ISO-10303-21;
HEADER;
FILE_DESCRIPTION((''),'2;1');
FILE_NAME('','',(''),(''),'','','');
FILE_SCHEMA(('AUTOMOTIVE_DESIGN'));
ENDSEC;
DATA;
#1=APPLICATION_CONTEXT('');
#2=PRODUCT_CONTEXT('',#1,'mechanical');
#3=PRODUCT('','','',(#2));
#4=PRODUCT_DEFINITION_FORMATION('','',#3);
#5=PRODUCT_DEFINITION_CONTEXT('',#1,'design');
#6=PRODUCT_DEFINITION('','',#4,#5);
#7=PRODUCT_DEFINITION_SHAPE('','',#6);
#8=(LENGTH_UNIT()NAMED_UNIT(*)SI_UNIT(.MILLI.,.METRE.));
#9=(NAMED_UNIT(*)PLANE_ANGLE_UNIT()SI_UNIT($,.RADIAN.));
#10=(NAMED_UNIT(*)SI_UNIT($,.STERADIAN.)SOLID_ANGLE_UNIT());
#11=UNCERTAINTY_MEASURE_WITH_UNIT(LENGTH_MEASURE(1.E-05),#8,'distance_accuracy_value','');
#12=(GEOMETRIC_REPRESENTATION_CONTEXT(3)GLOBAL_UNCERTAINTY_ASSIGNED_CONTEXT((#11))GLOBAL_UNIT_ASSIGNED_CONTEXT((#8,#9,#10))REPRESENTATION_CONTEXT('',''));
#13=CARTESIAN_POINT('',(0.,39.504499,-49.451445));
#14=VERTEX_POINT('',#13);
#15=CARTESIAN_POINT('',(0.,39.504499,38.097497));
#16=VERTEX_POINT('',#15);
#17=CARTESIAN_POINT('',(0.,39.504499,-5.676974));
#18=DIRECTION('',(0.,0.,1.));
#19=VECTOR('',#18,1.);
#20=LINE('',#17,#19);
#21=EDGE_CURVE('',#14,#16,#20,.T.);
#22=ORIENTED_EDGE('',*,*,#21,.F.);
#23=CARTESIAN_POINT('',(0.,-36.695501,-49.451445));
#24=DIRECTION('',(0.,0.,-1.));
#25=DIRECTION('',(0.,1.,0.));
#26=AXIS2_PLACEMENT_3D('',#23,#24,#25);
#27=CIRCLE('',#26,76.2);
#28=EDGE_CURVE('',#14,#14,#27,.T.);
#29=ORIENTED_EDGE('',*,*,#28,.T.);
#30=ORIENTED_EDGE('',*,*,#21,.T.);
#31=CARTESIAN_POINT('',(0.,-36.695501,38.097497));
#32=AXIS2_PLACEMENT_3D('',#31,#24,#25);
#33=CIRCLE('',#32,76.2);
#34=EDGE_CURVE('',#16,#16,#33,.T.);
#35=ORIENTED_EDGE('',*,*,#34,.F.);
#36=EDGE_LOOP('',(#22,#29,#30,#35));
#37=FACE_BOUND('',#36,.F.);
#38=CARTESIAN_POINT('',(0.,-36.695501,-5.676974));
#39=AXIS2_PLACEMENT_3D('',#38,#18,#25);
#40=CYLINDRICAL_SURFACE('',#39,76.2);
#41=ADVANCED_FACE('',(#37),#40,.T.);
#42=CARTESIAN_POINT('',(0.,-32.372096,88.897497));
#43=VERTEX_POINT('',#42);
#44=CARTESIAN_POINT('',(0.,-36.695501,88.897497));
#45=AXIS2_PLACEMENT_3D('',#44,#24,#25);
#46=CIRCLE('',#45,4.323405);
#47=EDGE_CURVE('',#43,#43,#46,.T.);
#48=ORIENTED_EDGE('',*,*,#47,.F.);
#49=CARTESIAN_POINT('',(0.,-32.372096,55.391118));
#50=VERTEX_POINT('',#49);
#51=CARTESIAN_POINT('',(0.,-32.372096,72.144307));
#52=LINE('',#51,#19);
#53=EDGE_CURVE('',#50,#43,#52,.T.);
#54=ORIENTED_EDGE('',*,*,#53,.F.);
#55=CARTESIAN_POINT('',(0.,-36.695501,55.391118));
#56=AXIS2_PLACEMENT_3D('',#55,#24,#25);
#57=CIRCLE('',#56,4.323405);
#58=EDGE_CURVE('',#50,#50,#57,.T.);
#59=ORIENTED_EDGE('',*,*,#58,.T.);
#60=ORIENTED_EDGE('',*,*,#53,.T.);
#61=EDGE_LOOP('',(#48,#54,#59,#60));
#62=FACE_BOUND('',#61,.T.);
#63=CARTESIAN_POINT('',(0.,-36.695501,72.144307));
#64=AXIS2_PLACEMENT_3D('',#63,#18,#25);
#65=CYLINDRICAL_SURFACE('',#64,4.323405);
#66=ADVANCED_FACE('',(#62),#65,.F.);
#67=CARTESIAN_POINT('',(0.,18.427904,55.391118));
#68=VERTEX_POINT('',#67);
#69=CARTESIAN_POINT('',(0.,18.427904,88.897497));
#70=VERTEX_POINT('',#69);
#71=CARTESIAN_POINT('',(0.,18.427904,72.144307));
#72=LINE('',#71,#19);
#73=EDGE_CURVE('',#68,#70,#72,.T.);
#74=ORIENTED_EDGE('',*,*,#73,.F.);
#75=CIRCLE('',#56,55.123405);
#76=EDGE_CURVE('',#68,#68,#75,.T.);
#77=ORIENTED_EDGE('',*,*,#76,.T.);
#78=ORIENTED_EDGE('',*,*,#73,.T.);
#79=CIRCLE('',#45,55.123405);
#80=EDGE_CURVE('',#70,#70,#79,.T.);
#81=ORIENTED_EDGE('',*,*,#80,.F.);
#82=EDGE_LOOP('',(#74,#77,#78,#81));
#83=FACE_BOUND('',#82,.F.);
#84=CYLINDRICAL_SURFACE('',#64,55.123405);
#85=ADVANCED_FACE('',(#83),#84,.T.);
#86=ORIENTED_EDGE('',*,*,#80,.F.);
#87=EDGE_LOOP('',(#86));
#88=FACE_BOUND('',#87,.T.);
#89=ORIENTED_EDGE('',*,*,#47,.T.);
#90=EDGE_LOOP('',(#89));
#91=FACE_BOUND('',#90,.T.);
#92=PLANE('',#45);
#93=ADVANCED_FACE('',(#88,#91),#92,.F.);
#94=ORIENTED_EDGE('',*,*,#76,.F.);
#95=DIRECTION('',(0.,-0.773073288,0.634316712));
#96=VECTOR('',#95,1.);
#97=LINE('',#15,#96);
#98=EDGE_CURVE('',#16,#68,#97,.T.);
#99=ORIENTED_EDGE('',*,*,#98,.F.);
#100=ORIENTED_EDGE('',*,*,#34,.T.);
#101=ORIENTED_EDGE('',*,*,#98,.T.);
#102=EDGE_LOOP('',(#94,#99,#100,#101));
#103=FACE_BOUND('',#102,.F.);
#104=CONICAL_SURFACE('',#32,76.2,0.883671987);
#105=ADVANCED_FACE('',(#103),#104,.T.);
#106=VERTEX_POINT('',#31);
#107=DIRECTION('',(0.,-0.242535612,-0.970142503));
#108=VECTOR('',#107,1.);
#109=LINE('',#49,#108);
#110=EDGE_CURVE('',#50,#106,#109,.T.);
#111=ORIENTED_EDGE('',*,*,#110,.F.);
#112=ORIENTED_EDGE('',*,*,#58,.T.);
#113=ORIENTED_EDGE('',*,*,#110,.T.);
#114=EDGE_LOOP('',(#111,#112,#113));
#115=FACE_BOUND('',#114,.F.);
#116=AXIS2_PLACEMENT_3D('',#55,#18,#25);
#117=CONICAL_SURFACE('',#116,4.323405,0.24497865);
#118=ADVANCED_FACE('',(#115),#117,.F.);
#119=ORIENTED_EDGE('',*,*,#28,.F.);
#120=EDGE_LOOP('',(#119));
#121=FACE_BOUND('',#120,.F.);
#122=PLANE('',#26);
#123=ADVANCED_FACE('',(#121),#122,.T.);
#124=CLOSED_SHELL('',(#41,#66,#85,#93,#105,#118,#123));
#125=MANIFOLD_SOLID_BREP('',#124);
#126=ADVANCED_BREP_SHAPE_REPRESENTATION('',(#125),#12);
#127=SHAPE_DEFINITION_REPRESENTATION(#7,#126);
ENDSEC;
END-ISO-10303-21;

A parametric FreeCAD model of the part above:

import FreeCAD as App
import Part
import Sketcher
Q = App.Units.Quantity

doc = App.newDocument("Part")
body = doc.addObject("PartDesign::Body", "Body")

# Sketch on YZ plane
sketch1 = body.newObject("Sketcher::SketchObject", "Sketch")
sketch1.AttachmentSupport = (doc.getObject("YZ_Plane"), [""])
sketch1.MapMode = "FlatFace"
sketch1.addGeometry(Part.LineSegment(App.Vector(-32, 89, 0), App.Vector(-32, 55, 0)), False)
sketch1.addGeometry(Part.LineSegment(App.Vector(-32, 55, 0), App.Vector(-37, 38, 0)), False)
sketch1.addGeometry(Part.LineSegment(App.Vector(-37, 38, 0), App.Vector(-37, -49, 0)), False)
sketch1.addGeometry(Part.LineSegment(App.Vector(-37, -49, 0), App.Vector(40, -49, 0)), False)
sketch1.addGeometry(Part.LineSegment(App.Vector(40, -49, 0), App.Vector(40, 38, 0)), False)
sketch1.addGeometry(Part.LineSegment(App.Vector(40, 38, 0), App.Vector(18, 55, 0)), False)
sketch1.addGeometry(Part.LineSegment(App.Vector(18, 55, 0), App.Vector(18, 89, 0)), False)
sketch1.addGeometry(Part.LineSegment(App.Vector(18, 89, 0), App.Vector(-32, 89, 0)), False)
sketch1.addGeometry(Part.LineSegment(App.Vector(-37, 89, 0), App.Vector(-37, -49, 0)), True)  # axis
sketch1.addConstraint(Sketcher.Constraint("Coincident", 0, 2, 1, 1))
sketch1.addConstraint(Sketcher.Constraint("Coincident", 1, 2, 2, 1))
sketch1.addConstraint(Sketcher.Constraint("Coincident", 2, 2, 3, 1))
sketch1.addConstraint(Sketcher.Constraint("Coincident", 3, 2, 4, 1))
sketch1.addConstraint(Sketcher.Constraint("Coincident", 4, 2, 5, 1))
sketch1.addConstraint(Sketcher.Constraint("Coincident", 5, 2, 6, 1))
sketch1.addConstraint(Sketcher.Constraint("Coincident", 6, 2, 7, 1))
sketch1.addConstraint(Sketcher.Constraint("Coincident", 7, 2, 0, 1))
sketch1.addConstraint(Sketcher.Constraint("Vertical", 0))
sketch1.addConstraint(Sketcher.Constraint("Vertical", 2))
sketch1.addConstraint(Sketcher.Constraint("Horizontal", 3))
sketch1.addConstraint(Sketcher.Constraint("Vertical", 4))
sketch1.addConstraint(Sketcher.Constraint("Vertical", 6))
sketch1.addConstraint(Sketcher.Constraint("Horizontal", 7))
sketch1.addConstraint(Sketcher.Constraint("Vertical", 8))
sketch1.addConstraint(Sketcher.Constraint("Coincident", 8, 2, 2, 2))
sketch1.addConstraint(Sketcher.Constraint("Horizontal", 1, 2, 4, 2))
sketch1.addConstraint(Sketcher.Constraint("Horizontal", 0, 2, 5, 2))
sketch1.addConstraint(Sketcher.Constraint("Horizontal", 7, 2, 8, 1))
sketch1.addConstraint(Sketcher.Constraint("DistanceX", 3, 1, 3, 2, Q("3 in")))
sketch1.addConstraint(Sketcher.Constraint("DistanceX", 7, 2, 7, 1, Q("2 in")))
sketch1.addConstraint(Sketcher.Constraint("DistanceY", 4, 2, 6, 2, Q("2 in")))
sketch1.addConstraint(Sketcher.Constraint("DistanceY", 0, 2, 0, 1, Q("33.506379 mm")))
sketch1.addConstraint(Sketcher.Constraint("DistanceY", 2, 2, 2, 1, Q("87.548942 mm")))
sketch1.addConstraint(Sketcher.Constraint("DistanceX", 1, 2, -1, 1, Q("36.695501 mm")))
sketch1.addConstraint(Sketcher.Constraint("Distance", 1, Q("17.825856 mm")))
sketch1.addConstraint(Sketcher.Constraint("DistanceY", -1, 1, 0, 2, Q("55.391118 mm")))
revolution = body.newObject("PartDesign::Revolution", "Revolution")
revolution.Profile = sketch1
revolution.ReferenceAxis = (sketch1, ["Axis0"])
revolution.Angle = 360

doc.recompute()
